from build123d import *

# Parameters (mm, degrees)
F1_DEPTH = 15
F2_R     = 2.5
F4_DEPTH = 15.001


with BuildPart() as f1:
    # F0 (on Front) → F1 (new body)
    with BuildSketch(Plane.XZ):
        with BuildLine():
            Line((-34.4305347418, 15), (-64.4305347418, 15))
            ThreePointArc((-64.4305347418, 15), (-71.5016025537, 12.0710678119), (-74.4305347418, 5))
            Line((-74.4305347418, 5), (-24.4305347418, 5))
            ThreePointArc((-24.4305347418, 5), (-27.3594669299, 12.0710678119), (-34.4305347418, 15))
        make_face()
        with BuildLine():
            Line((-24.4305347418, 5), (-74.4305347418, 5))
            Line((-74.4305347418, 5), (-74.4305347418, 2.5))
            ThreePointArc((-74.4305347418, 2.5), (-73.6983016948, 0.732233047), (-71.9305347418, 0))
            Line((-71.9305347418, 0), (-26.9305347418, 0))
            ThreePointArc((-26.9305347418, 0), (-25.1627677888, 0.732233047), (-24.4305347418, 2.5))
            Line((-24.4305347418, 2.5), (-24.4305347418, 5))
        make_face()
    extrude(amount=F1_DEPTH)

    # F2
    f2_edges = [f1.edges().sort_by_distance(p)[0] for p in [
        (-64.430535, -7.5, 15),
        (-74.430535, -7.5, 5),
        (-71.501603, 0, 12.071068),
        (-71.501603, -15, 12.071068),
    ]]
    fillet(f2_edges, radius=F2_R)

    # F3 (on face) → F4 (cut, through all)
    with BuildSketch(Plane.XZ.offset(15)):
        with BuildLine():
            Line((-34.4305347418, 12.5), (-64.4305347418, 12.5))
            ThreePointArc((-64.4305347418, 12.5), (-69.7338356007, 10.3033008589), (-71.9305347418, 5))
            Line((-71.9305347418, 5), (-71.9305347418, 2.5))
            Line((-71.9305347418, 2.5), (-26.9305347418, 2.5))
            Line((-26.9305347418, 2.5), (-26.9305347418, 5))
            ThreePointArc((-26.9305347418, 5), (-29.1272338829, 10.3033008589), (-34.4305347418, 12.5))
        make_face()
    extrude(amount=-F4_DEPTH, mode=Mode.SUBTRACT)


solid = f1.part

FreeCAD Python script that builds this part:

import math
import FreeCAD as App
import Part
import Sketcher

V = App.Vector
Q = App.Units.Quantity


def edges_at(feature, points):
    """Names of the edges that pass closest to the given points."""
    edges = feature.Shape.Edges
    near = lambda p: min(range(len(edges)), key=lambda i: edges[i].distToShape(Part.Vertex(*p))[0])
    return sorted({f"Edge{near(p) + 1}" for p in points})

doc = App.newDocument("Part")
body = doc.addObject("PartDesign::Body", "Body")

sketch1 = doc.addObject("Sketcher::SketchObject", "Sketch")
body.addObject(sketch1)
sketch1.AttachmentSupport = (doc.XZ_Plane, [""])
sketch1.MapMode = "FlatFace"
sketch1.addGeometry([
    Part.LineSegment(V(-34.4, 15, 0), V(-64.4, 15, 0)),
    Part.ArcOfCircle(Part.Circle(V(-64.4, 5, 0), V(0, 0, 1), 10), math.radians(90), math.radians(180)),
    Part.LineSegment(V(-74.4, 5, 0), V(-74.4, 2.5, 0)),
    Part.ArcOfCircle(Part.Circle(V(-71.9, 2.5, 0), V(0, 0, 1), 2.5), math.radians(180), math.radians(270)),
    Part.LineSegment(V(-71.9, 0, 0), V(-26.9, 0, 0)),
    Part.ArcOfCircle(Part.Circle(V(-26.9, 2.5, 0), V(0, 0, 1), 2.5), math.radians(-90), math.radians(0)),
    Part.LineSegment(V(-24.4, 2.5, 0), V(-24.4, 5, 0)),
    Part.ArcOfCircle(Part.Circle(V(-34.4, 5, 0), V(0, 0, 1), 10), math.radians(0), math.radians(90)),
], False)
sketch1.addConstraint([
    Sketcher.Constraint("Tangent", 0, 2, 1, 1),
    Sketcher.Constraint("Tangent", 1, 2, 2, 1),
    Sketcher.Constraint("Tangent", 2, 2, 3, 1),
    Sketcher.Constraint("Tangent", 3, 2, 4, 1),
    Sketcher.Constraint("Tangent", 4, 2, 5, 1),
    Sketcher.Constraint("Tangent", 5, 2, 6, 1),
    Sketcher.Constraint("Tangent", 6, 2, 7, 1),
    Sketcher.Constraint("Tangent", 7, 2, 0, 1),
    Sketcher.Constraint("Horizontal", 0),
    Sketcher.Constraint("Vertical", 2),
    Sketcher.Constraint("Horizontal", 4),
    Sketcher.Constraint("Vertical", 6),
    Sketcher.Constraint("Equal", 3, 5),
    Sketcher.Constraint("Equal", 1, 7),
    Sketcher.Constraint("PointOnObject", 3, 2, -1),
    Sketcher.Constraint("Radius", 1, Q("10 mm")),
    Sketcher.Constraint("Radius", 3, Q("2.5 mm")),
    Sketcher.Constraint("DistanceX", 0, 2, 0, 1, Q("30 mm")),
    Sketcher.Constraint("DistanceY", 2, 2, 2, 1, Q("2.5 mm")),
    Sketcher.Constraint("DistanceX", 1, 3, -1, 1, Q("64.430535 mm")),
])
pad1 = doc.addObject("PartDesign::Pad", "Pad")
body.addObject(pad1)
pad1.Profile = sketch1
pad1.Length = 15
doc.recompute()

fillet = doc.addObject("PartDesign::Fillet", "Fillet")
body.addObject(fillet)
fillet.Base = (pad1, edges_at(pad1, [
    (-64.431, -7.5, 15),
    (-74.431, -7.5, 5),
    (-71.502, 0, 12.071),
    (-71.502, -15, 12.071),
]))
fillet.Radius = 2.5

sketch2 = doc.addObject("Sketcher::SketchObject", "Sketch001")
body.addObject(sketch2)
sketch2.AttachmentSupport = (doc.XZ_Plane, [""])
sketch2.MapMode = "FlatFace"
sketch2.AttachmentOffset = App.Placement(V(0, 0, 15), App.Rotation())
sketch2.addGeometry([
    Part.LineSegment(V(-34.4, 12.5, 0), V(-64.4, 12.5, 0)),
    Part.ArcOfCircle(Part.Circle(V(-64.4, 5, 0), V(0, 0, 1), 7.5), math.radians(90), math.radians(180)),
    Part.LineSegment(V(-71.9, 5, 0), V(-71.9, 2.5, 0)),
    Part.LineSegment(V(-71.9, 2.5, 0), V(-26.9, 2.5, 0)),
    Part.LineSegment(V(-26.9, 2.5, 0), V(-26.9, 5, 0)),
    Part.ArcOfCircle(Part.Circle(V(-34.4, 5, 0), V(0, 0, 1), 7.5), math.radians(0), math.radians(90)),
], False)
sketch2.addConstraint([
    Sketcher.Constraint("Tangent", 0, 2, 1, 1),
    Sketcher.Constraint("Tangent", 1, 2, 2, 1),
    Sketcher.Constraint("Coincident", 2, 2, 3, 1),
    Sketcher.Constraint("Coincident", 3, 2, 4, 1),
    Sketcher.Constraint("Tangent", 4, 2, 5, 1),
    Sketcher.Constraint("Tangent", 5, 2, 0, 1),
    Sketcher.Constraint("Horizontal", 0),
    Sketcher.Constraint("Vertical", 2),
    Sketcher.Constraint("Horizontal", 3),
    Sketcher.Constraint("Vertical", 4),
    Sketcher.Constraint("Equal", 1, 5),
    Sketcher.Constraint("Radius", 1, Q("7.5 mm")),
    Sketcher.Constraint("DistanceX", 0, 2, 0, 1, Q("30 mm")),
    Sketcher.Constraint("DistanceY", 2, 2, 2, 1, Q("2.5 mm")),
    Sketcher.Constraint("DistanceY", -1, 1, 1, 3, Q("5 mm")),
    Sketcher.Constraint("DistanceX", 1, 3, -1, 1, Q("64.430535 mm")),
])
pocket1 = doc.addObject("PartDesign::Pocket", "Pocket")
body.addObject(pocket1)
pocket1.Profile = sketch2
pocket1.Type = "ThroughAll"

doc.recompute()
